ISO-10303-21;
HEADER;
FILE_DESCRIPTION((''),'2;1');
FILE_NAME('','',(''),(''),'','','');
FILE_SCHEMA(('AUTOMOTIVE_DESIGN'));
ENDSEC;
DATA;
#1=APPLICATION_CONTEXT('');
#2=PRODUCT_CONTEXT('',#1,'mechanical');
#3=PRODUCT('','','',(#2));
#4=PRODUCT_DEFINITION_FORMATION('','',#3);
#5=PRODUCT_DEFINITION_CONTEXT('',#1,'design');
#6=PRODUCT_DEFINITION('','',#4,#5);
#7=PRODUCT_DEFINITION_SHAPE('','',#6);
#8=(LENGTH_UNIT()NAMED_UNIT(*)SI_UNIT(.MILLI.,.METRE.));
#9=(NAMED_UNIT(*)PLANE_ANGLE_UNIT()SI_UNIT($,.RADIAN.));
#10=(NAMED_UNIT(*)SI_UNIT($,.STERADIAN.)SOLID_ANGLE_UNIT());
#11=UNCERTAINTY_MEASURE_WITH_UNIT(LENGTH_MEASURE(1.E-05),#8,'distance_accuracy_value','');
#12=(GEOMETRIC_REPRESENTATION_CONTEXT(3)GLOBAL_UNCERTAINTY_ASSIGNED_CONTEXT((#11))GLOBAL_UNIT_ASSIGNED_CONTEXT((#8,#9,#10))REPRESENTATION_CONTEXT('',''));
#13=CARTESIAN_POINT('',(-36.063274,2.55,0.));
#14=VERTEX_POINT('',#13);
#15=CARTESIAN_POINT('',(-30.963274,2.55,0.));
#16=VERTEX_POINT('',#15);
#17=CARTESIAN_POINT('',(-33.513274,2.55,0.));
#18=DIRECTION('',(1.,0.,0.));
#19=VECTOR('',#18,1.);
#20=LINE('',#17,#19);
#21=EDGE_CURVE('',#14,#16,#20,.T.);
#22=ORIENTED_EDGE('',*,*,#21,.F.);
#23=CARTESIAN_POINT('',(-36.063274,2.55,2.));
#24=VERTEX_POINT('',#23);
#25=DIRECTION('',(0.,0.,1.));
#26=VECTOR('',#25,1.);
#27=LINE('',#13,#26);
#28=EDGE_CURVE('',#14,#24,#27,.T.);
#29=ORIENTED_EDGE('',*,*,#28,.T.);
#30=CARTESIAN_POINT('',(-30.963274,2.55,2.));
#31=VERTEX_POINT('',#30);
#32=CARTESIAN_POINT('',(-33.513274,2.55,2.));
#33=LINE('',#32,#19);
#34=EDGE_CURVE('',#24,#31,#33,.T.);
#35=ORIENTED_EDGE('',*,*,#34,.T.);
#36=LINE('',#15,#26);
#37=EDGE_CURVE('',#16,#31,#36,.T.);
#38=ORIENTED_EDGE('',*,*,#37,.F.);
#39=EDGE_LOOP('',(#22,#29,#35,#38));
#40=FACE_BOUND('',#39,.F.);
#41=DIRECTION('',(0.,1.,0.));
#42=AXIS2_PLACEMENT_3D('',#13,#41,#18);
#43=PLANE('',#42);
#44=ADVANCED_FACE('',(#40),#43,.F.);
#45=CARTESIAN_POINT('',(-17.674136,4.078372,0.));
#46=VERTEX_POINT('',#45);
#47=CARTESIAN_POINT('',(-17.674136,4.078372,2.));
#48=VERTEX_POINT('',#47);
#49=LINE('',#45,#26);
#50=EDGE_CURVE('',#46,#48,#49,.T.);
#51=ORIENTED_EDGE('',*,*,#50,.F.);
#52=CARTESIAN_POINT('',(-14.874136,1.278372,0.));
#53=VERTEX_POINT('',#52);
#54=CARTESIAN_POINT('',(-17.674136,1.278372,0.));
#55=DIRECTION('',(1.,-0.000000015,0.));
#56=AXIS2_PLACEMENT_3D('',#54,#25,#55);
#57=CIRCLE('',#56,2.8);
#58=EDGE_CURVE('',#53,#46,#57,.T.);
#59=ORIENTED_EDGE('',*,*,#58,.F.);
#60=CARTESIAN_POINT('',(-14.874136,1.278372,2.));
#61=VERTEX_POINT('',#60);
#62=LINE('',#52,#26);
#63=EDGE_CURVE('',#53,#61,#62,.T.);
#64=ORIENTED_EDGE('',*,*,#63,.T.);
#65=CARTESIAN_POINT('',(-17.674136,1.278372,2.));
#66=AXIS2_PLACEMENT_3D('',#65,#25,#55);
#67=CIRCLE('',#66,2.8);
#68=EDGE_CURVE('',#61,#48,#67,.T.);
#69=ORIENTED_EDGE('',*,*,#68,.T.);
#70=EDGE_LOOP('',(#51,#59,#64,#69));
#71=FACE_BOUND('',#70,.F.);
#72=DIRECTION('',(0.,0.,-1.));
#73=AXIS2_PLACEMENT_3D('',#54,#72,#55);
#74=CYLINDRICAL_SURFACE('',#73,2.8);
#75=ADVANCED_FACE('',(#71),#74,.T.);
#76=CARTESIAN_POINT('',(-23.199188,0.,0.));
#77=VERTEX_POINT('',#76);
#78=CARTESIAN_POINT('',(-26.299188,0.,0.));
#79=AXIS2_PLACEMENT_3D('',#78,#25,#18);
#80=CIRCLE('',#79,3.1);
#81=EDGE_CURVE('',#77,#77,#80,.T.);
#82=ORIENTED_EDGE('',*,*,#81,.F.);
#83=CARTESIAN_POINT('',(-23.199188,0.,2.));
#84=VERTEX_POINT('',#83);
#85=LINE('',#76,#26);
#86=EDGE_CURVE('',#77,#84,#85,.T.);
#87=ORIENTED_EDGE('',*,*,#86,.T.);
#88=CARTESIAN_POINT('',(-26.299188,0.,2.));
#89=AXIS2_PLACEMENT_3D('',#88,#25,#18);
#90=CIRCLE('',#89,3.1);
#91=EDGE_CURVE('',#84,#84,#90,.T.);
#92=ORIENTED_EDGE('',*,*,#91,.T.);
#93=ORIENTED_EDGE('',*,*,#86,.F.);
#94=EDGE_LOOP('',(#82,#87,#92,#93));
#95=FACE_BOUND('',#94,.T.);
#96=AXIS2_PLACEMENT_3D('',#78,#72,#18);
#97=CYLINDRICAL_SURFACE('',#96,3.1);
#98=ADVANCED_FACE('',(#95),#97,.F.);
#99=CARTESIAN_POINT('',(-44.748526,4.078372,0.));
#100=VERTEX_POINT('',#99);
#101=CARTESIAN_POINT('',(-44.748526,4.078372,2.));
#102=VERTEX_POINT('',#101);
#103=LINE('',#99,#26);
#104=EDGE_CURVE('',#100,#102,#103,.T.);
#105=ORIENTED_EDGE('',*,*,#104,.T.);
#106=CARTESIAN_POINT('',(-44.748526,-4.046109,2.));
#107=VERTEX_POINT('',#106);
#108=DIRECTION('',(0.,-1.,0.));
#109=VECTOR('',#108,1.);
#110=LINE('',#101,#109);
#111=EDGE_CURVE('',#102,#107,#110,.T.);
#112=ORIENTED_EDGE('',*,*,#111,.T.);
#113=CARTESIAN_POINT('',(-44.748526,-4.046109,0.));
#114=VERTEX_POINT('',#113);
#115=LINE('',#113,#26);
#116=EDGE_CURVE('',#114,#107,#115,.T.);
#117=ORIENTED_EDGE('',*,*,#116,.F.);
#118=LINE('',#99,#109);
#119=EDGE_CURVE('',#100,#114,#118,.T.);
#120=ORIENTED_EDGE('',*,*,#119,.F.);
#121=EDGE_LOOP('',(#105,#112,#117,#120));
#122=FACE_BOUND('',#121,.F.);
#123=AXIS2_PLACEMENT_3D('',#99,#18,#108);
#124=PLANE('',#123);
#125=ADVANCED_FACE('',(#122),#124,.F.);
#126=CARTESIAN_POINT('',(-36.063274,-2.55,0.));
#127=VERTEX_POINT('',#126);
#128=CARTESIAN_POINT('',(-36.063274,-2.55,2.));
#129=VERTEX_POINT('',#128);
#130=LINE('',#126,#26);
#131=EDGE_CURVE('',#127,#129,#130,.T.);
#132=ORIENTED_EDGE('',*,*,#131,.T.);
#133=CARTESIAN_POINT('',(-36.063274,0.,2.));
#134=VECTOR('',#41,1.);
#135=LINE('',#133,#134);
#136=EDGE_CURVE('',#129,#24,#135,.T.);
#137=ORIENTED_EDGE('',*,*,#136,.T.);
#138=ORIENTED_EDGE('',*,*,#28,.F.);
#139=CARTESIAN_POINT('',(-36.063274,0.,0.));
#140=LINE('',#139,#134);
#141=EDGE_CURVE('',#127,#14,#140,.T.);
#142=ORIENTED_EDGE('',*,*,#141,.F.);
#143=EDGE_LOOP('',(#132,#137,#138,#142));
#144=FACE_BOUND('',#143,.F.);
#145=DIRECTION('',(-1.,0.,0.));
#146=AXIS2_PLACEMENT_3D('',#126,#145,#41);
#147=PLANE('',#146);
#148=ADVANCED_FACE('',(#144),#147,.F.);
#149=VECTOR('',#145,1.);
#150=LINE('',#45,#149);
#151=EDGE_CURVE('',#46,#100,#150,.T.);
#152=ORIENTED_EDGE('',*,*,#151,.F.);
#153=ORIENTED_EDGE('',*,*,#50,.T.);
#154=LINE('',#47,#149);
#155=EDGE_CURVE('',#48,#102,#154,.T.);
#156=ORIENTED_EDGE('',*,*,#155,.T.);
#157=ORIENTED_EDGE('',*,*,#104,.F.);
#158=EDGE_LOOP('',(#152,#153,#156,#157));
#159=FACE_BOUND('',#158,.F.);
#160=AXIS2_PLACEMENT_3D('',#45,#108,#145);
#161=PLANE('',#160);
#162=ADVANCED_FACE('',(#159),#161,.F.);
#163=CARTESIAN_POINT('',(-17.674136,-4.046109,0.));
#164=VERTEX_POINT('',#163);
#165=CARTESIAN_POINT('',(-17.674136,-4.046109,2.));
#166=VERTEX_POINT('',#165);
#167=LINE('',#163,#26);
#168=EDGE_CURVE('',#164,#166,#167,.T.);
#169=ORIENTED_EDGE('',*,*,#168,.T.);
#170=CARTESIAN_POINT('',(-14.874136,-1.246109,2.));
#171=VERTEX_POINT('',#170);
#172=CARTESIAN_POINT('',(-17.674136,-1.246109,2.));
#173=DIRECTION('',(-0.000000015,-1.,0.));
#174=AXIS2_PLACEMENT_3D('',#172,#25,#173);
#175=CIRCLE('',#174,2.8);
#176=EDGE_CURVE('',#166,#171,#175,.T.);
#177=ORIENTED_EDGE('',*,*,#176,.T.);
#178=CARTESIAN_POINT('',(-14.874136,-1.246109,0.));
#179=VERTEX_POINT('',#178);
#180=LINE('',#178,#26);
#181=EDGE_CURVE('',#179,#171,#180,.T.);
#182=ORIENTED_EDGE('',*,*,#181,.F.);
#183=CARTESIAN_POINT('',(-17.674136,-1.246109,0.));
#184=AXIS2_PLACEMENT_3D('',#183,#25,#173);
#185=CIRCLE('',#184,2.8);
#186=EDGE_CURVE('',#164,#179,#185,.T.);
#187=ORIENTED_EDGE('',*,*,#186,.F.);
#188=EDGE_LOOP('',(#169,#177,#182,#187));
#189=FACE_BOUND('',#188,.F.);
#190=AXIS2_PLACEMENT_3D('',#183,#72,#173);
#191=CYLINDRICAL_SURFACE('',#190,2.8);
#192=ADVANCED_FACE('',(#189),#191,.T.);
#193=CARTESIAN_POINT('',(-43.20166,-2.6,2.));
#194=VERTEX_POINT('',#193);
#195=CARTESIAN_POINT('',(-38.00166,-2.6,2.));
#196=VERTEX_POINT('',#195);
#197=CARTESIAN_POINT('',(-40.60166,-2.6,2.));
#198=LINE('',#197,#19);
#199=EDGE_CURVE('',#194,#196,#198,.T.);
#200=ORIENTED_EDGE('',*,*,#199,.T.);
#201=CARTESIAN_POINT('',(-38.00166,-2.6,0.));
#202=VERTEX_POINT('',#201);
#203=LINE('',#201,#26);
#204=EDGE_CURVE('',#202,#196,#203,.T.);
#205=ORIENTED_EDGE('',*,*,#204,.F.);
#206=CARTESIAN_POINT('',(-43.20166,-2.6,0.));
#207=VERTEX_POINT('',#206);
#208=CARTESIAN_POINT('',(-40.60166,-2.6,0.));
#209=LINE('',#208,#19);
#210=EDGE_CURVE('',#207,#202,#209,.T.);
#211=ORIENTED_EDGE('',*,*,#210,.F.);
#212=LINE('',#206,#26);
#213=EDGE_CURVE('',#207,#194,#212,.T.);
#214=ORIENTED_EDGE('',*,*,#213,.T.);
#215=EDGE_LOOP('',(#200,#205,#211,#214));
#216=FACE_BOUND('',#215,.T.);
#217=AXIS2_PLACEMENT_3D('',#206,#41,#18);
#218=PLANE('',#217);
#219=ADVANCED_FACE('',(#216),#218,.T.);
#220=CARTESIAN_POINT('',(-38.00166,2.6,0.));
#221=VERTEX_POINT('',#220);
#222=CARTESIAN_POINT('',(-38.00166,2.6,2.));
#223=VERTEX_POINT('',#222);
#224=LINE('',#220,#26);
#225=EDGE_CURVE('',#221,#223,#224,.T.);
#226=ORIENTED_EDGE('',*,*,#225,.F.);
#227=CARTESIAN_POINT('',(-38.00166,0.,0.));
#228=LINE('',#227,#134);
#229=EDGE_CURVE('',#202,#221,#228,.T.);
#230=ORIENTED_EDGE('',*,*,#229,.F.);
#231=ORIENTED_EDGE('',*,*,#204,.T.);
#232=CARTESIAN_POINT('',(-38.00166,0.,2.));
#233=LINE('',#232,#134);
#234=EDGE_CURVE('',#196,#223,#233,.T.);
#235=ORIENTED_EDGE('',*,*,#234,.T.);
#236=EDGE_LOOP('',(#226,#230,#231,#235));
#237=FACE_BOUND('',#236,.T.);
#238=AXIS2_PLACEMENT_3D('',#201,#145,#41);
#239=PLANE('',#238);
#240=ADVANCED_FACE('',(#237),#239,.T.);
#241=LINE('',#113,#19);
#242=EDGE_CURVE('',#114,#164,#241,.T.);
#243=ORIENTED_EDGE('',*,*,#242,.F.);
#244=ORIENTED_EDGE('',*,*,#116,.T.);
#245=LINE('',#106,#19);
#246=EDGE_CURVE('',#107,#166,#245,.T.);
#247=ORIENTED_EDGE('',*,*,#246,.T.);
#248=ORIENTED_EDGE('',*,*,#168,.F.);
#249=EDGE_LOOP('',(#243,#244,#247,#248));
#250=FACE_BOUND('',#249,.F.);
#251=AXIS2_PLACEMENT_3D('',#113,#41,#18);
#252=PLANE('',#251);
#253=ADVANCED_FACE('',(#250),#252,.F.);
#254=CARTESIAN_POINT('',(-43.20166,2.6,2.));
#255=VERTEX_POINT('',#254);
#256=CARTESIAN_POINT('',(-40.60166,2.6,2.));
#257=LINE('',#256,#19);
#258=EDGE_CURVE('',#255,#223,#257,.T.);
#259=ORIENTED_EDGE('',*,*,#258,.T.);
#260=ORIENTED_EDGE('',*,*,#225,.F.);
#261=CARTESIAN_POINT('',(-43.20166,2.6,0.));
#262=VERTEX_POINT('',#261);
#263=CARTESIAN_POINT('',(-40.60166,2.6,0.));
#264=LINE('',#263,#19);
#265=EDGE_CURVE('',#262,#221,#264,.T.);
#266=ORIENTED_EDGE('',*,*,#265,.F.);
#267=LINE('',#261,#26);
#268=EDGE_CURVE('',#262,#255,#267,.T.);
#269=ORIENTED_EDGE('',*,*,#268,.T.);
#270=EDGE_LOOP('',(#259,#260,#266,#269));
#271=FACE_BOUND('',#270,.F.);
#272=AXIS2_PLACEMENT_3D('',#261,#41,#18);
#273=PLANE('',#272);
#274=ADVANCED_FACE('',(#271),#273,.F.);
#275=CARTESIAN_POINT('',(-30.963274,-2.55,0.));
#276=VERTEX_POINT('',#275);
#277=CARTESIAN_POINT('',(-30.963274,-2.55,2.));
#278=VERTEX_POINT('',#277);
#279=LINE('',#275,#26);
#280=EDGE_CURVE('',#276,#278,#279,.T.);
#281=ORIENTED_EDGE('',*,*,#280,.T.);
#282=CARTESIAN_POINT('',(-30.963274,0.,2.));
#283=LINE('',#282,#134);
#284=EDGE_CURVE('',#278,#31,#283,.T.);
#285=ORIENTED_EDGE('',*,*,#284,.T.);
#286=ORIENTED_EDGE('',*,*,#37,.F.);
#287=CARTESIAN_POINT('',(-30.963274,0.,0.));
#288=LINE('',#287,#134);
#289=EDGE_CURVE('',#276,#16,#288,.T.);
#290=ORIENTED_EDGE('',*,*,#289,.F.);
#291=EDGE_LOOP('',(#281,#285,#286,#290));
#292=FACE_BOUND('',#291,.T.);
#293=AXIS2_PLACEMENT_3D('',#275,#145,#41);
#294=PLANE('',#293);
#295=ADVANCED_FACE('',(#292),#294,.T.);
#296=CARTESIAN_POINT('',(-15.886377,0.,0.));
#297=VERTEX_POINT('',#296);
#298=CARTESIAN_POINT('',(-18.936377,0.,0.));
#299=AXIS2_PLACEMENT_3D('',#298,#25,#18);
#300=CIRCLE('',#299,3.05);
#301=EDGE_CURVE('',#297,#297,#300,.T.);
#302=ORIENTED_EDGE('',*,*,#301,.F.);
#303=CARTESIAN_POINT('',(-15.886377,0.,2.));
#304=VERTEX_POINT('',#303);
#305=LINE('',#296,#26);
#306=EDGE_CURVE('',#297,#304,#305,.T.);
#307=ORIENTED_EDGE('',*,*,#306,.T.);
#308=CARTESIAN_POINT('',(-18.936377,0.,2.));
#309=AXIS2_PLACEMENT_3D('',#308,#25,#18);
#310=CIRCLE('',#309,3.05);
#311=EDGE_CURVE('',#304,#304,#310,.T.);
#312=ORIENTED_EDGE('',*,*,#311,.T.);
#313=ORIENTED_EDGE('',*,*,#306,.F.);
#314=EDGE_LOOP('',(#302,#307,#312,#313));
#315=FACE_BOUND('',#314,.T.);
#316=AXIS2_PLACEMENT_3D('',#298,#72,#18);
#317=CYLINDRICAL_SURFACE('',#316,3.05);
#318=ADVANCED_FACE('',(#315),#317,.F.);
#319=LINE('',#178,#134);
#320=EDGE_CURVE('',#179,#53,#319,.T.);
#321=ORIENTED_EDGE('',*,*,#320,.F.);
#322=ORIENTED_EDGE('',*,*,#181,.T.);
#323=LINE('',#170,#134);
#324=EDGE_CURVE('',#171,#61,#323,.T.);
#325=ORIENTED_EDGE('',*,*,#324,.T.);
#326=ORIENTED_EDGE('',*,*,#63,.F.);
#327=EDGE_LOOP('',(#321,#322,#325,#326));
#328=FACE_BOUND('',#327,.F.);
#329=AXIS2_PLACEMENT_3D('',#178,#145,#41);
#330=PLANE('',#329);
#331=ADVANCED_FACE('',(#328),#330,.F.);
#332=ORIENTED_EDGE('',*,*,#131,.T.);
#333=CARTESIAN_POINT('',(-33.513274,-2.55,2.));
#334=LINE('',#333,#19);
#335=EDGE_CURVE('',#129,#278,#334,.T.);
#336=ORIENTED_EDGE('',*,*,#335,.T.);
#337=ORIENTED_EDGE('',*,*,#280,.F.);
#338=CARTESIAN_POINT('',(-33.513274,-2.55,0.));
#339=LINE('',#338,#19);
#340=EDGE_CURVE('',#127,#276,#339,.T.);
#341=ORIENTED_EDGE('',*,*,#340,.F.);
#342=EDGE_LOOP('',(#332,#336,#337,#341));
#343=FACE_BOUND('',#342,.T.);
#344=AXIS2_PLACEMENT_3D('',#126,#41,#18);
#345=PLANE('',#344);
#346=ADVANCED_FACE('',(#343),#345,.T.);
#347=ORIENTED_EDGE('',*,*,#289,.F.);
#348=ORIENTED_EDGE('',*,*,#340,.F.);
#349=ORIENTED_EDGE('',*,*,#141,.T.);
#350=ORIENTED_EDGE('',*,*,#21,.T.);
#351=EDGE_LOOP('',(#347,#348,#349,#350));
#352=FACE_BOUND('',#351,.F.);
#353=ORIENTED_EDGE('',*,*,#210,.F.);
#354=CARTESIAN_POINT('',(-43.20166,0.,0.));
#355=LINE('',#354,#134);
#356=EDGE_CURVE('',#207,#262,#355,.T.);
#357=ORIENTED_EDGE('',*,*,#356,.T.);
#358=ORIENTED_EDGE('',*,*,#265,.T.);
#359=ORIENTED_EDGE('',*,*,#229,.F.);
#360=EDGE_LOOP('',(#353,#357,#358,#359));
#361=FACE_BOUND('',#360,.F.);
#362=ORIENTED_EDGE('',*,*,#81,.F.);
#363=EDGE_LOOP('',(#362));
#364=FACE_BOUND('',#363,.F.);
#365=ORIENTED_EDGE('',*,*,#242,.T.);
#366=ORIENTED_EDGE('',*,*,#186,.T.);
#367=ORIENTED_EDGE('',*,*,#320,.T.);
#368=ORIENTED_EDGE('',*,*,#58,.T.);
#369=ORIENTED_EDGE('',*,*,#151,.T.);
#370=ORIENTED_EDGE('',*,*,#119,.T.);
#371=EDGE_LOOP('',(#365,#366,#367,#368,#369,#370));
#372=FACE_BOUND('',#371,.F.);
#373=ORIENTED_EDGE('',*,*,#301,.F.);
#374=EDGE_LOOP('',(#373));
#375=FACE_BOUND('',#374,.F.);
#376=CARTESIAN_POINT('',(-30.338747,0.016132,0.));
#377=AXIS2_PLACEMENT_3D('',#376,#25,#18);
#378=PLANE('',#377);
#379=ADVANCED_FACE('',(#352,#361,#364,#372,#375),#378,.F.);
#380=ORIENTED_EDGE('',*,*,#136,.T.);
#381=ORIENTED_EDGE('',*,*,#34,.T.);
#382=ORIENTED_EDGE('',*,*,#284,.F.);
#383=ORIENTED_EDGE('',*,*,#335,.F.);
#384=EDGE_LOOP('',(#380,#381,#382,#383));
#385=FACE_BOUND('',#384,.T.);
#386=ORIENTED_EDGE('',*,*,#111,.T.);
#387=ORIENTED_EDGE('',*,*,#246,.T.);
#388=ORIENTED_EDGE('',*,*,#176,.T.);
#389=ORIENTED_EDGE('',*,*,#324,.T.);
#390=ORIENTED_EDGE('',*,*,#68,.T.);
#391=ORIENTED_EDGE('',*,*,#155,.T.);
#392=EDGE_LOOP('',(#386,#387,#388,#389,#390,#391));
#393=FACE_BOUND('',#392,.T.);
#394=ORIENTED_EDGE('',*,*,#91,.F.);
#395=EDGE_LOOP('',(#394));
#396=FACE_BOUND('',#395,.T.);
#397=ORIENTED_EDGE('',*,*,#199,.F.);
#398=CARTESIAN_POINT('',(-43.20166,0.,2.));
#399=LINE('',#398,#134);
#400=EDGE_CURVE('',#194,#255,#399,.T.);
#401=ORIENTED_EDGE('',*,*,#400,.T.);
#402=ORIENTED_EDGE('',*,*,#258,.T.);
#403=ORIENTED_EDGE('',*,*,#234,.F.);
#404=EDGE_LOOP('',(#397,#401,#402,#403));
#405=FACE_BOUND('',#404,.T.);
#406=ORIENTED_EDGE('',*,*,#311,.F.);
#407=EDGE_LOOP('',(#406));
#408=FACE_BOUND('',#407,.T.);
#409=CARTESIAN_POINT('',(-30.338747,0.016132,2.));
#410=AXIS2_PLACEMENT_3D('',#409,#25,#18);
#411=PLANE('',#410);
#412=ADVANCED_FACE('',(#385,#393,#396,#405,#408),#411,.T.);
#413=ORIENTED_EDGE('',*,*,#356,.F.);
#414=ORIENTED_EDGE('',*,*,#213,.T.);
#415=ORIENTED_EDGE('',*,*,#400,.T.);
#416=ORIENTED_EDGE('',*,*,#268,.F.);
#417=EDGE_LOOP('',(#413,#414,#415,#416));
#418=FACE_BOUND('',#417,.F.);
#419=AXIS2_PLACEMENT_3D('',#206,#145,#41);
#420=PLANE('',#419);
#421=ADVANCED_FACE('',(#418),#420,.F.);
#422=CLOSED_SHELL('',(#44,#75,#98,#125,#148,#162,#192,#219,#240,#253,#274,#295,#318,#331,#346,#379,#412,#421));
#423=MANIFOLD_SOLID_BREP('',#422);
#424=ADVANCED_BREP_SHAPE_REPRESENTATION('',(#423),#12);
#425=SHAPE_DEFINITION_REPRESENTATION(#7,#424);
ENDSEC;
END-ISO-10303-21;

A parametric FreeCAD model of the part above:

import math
import FreeCAD as App
import Part
import Sketcher
from FreeCAD import Vector
Q = App.Units.Quantity

doc = App.newDocument("Part")
body = doc.addObject("PartDesign::Body", "Body")

# Sketch on XY plane
sketch1 = body.newObject("Sketcher::SketchObject", "Sketch")
sketch1.AttachmentSupport = (doc.getObject("XY_Plane"), [""])
sketch1.MapMode = "FlatFace"
sketch1.addGeometry([
    Part.LineSegment(Vector(-17.7, 4.1, 0), Vector(-44.7, 4.1, 0)),  # 0
    Part.LineSegment(Vector(-44.7, 4.1, 0), Vector(-44.7, -4, 0)),  # 1
    Part.LineSegment(Vector(-44.7, -4, 0), Vector(-17.7, -4, 0)),  # 2
    Part.ArcOfCircle(Part.Circle(Vector(-17.7, -1.2, 0), Vector(0, 0, 1), 2.8), math.radians(-90), math.radians(0)),  # 3
    Part.LineSegment(Vector(-14.9, -1.2, 0), Vector(-14.9, 1.3, 0)),  # 4
    Part.ArcOfCircle(Part.Circle(Vector(-17.7, 1.3, 0), Vector(0, 0, 1), 2.8), math.radians(0), math.radians(90)),  # 5
    Part.LineSegment(Vector(-38, -2.6, 0), Vector(-43.2, -2.6, 0)),  # 6
    Part.LineSegment(Vector(-43.2, -2.6, 0), Vector(-43.2, 2.6, 0)),  # 7
    Part.LineSegment(Vector(-43.2, 2.6, 0), Vector(-38, 2.6, 0)),  # 8
    Part.LineSegment(Vector(-38, 2.6, 0), Vector(-38, -2.6, 0)),  # 9
    Part.LineSegment(Vector(-31, -2.5, 0), Vector(-36.1, -2.5, 0)),  # 10
    Part.LineSegment(Vector(-36.1, -2.5, 0), Vector(-36.1, 2.5, 0)),  # 11
    Part.LineSegment(Vector(-36.1, 2.5, 0), Vector(-31, 2.5, 0)),  # 12
    Part.LineSegment(Vector(-31, 2.5, 0), Vector(-31, -2.5, 0)),  # 13
    Part.Circle(Vector(-26.3, 0, 0), Vector(0, 0, 1), 3.1),  # 14
    Part.Circle(Vector(-18.9, 0, 0), Vector(0, 0, 1), 3),  # 15
], False)
sketch1.addConstraint([
    Sketcher.Constraint("Coincident", 0, 2, 1, 1),
    Sketcher.Constraint("Coincident", 1, 2, 2, 1),
    Sketcher.Constraint("Tangent", 2, 2, 3, 1),
    Sketcher.Constraint("Tangent", 3, 2, 4, 1),
    Sketcher.Constraint("Tangent", 4, 2, 5, 1),
    Sketcher.Constraint("Tangent", 5, 2, 0, 1),
    Sketcher.Constraint("Coincident", 6, 2, 7, 1),
    Sketcher.Constraint("Coincident", 7, 2, 8, 1),
    Sketcher.Constraint("Coincident", 8, 2, 9, 1),
    Sketcher.Constraint("Coincident", 9, 2, 6, 1),
    Sketcher.Constraint("Coincident", 10, 2, 11, 1),
    Sketcher.Constraint("Coincident", 11, 2, 12, 1),
    Sketcher.Constraint("Coincident", 12, 2, 13, 1),
    Sketcher.Constraint("Coincident", 13, 2, 10, 1),
    Sketcher.Constraint("Horizontal", 0),
    Sketcher.Constraint("Vertical", 1),
    Sketcher.Constraint("Horizontal", 2),
    Sketcher.Constraint("Vertical", 4),
    Sketcher.Constraint("Horizontal", 6),
    Sketcher.Constraint("Vertical", 7),
    Sketcher.Constraint("Horizontal", 8),
    Sketcher.Constraint("Vertical", 9),
    Sketcher.Constraint("Horizontal", 10),
    Sketcher.Constraint("Vertical", 11),
    Sketcher.Constraint("Horizontal", 12),
    Sketcher.Constraint("Vertical", 13),
    Sketcher.Constraint("Equal", 3, 5),
    Sketcher.Constraint("PointOnObject", 14, 3, -1),
    Sketcher.Constraint("PointOnObject", 15, 3, -1),
    Sketcher.Constraint("Equal", 8, 7),
    Sketcher.Constraint("Equal", 12, 11),
    Sketcher.Constraint("Diameter", 14, Q("6.2 mm")),
    Sketcher.Constraint("Diameter", 15, Q("6.1 mm")),
    Sketcher.Constraint("Radius", 3, Q("2.8 mm")),
    Sketcher.Constraint("DistanceX", 6, 2, 6, 1, Q("5.2 mm")),
    Sketcher.Constraint("DistanceX", 10, 2, 10, 1, Q("5.1 mm")),
    Sketcher.Constraint("DistanceY", 6, 2, -1, 1, Q("2.6 mm")),
    Sketcher.Constraint("DistanceY", 10, 2, -1, 1, Q("2.55 mm")),
    Sketcher.Constraint("DistanceX", 0, 2, 0, 1, Q("27.07439 mm")),
    Sketcher.Constraint("DistanceY", 1, 2, 1, 1, Q("8.124481 mm")),
    Sketcher.Constraint("DistanceY", 3, 3, -1, 1, Q("1.246109 mm")),
    Sketcher.Constraint("DistanceX", 14, 3, -1, 1, Q("26.299188 mm")),
    Sketcher.Constraint("DistanceX", 6, 2, -1, 1, Q("43.20166 mm")),
    Sketcher.Constraint("DistanceX", 15, 3, 3, 3, Q("1.262241 mm")),
    Sketcher.Constraint("DistanceX", 14, 3, 15, 3, Q("7.362811 mm")),
    Sketcher.Constraint("DistanceX", 1, 2, 10, 2, Q("8.685252 mm")),
])
pad1 = body.newObject("PartDesign::Pad", "Pad")
pad1.Profile = sketch1
pad1.Length = 2

doc.recompute()
